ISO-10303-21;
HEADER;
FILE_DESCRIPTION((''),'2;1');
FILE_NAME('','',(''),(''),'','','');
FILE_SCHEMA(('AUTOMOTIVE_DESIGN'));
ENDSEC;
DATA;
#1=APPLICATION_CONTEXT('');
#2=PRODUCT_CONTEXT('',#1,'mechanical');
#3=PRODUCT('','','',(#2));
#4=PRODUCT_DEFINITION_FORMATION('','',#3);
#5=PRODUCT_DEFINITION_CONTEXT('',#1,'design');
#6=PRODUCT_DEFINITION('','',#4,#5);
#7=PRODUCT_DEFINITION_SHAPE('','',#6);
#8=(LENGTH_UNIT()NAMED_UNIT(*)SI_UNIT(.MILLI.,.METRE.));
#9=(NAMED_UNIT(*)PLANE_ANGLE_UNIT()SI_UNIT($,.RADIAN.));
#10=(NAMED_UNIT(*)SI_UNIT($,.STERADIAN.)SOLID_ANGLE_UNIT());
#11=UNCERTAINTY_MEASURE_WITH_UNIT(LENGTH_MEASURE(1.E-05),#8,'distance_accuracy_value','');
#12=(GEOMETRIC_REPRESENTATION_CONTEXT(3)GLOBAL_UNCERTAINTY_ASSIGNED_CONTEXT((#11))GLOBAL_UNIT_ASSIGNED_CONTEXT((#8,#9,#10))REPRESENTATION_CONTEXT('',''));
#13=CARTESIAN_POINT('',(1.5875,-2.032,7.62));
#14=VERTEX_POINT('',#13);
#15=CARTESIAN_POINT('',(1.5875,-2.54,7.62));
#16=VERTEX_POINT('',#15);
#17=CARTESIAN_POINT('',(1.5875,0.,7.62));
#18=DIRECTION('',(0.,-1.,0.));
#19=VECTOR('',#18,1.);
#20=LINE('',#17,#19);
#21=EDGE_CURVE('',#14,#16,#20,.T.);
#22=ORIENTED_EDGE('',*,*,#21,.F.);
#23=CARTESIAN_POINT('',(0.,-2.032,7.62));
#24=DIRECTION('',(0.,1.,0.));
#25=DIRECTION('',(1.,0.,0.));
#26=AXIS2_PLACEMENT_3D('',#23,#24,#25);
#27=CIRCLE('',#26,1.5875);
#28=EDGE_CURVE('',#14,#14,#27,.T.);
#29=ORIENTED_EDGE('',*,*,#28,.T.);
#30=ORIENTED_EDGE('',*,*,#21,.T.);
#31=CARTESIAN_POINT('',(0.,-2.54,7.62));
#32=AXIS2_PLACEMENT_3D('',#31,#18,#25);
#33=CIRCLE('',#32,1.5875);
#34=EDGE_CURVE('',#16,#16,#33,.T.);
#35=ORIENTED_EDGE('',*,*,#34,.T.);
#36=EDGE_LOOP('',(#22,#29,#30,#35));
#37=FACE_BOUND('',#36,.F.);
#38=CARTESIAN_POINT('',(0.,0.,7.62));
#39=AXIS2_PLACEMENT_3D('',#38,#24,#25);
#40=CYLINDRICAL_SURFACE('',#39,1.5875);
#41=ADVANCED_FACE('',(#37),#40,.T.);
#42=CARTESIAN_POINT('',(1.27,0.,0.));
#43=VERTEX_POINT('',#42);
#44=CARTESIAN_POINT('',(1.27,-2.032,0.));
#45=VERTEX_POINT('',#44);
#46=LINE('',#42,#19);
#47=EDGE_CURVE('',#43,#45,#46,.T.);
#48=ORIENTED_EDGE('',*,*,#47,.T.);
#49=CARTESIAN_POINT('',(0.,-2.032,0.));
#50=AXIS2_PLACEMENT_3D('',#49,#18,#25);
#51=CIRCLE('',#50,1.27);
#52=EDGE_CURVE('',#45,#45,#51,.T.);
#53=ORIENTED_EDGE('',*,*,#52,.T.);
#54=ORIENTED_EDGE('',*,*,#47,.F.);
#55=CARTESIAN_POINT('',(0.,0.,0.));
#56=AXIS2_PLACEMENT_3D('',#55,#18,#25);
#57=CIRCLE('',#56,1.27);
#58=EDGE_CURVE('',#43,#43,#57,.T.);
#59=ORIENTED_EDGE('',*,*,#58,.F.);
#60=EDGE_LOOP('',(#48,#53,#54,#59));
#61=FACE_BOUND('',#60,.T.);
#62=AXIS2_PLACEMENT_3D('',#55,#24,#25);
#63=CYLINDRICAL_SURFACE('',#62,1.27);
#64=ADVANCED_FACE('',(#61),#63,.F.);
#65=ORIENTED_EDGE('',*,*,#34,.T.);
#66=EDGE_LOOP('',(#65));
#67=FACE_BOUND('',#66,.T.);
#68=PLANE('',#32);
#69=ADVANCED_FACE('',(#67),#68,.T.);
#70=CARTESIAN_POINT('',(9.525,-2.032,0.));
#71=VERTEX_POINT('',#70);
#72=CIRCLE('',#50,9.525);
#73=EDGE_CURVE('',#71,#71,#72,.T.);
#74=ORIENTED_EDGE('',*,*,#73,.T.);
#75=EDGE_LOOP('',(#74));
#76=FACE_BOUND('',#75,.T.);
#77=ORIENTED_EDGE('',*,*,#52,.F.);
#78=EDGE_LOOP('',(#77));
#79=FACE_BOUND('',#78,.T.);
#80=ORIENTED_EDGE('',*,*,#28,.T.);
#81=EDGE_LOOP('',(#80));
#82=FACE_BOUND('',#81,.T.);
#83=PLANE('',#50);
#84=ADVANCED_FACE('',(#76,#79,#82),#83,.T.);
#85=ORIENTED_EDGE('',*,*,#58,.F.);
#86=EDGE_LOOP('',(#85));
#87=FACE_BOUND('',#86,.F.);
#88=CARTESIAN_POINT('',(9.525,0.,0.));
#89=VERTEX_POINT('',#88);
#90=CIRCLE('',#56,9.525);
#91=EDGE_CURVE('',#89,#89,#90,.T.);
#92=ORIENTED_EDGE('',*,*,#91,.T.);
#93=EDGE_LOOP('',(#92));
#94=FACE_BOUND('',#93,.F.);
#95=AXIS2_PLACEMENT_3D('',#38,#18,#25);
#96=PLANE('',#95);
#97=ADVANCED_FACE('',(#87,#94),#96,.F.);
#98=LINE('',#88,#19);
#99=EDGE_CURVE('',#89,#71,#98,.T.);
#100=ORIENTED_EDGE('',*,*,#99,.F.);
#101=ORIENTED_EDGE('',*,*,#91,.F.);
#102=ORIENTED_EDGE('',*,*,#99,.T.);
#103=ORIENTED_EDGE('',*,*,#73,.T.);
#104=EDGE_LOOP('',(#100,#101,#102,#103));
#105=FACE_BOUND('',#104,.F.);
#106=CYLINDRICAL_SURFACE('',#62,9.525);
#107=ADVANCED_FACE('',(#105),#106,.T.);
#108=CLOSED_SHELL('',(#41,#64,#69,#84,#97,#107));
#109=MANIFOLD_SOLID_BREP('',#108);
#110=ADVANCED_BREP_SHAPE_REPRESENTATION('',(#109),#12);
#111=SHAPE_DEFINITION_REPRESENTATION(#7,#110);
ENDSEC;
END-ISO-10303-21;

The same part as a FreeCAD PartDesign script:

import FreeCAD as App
import Part
import Sketcher
Q = App.Units.Quantity

doc = App.newDocument("Part")
body = doc.addObject("PartDesign::Body", "Body")

# Sketch on XZ plane
sketch1 = body.newObject("Sketcher::SketchObject", "Sketch")
sketch1.AttachmentSupport = (doc.getObject("XZ_Plane"), [""])
sketch1.MapMode = "FlatFace"
sketch1.addGeometry(Part.Circle(App.Vector(0, 0, 0), App.Vector(0, 0, 1), 9.5), False)
sketch1.addGeometry(Part.Circle(App.Vector(0, 0, 0), App.Vector(0, 0, 1), 1.3), False)
sketch1.addConstraint(Sketcher.Constraint("Coincident", 0, 3, -1, 1))
sketch1.addConstraint(Sketcher.Constraint("Coincident", 1, 3, -1, 1))
sketch1.addConstraint(Sketcher.Constraint("Diameter", 1, Q("0.1 in")))
sketch1.addConstraint(Sketcher.Constraint("Diameter", 0, Q("0.75 in")))
pad1 = body.newObject("PartDesign::Pad", "Pad")
pad1.Profile = sketch1
pad1.Length = Q("0.08 in")

# Sketch on XZ plane
sketch2 = body.newObject("Sketcher::SketchObject", "Sketch001")
sketch2.AttachmentSupport = (doc.getObject("XZ_Plane"), [""])
sketch2.MapMode = "FlatFace"
sketch2.addGeometry(Part.Circle(App.Vector(0, 7.6, 0), App.Vector(0, 0, 1), 1.6), False)
sketch2.addConstraint(Sketcher.Constraint("PointOnObject", 0, 3, -2))
sketch2.addConstraint(Sketcher.Constraint("Diameter", 0, Q("0.125 in")))
sketch2.addConstraint(Sketcher.Constraint("DistanceY", -1, 1, 0, 3, Q("0.3 in")))
pad2 = body.newObject("PartDesign::Pad", "Pad001")
pad2.Profile = sketch2
pad2.Length = Q("0.1 in")

doc.recompute()
